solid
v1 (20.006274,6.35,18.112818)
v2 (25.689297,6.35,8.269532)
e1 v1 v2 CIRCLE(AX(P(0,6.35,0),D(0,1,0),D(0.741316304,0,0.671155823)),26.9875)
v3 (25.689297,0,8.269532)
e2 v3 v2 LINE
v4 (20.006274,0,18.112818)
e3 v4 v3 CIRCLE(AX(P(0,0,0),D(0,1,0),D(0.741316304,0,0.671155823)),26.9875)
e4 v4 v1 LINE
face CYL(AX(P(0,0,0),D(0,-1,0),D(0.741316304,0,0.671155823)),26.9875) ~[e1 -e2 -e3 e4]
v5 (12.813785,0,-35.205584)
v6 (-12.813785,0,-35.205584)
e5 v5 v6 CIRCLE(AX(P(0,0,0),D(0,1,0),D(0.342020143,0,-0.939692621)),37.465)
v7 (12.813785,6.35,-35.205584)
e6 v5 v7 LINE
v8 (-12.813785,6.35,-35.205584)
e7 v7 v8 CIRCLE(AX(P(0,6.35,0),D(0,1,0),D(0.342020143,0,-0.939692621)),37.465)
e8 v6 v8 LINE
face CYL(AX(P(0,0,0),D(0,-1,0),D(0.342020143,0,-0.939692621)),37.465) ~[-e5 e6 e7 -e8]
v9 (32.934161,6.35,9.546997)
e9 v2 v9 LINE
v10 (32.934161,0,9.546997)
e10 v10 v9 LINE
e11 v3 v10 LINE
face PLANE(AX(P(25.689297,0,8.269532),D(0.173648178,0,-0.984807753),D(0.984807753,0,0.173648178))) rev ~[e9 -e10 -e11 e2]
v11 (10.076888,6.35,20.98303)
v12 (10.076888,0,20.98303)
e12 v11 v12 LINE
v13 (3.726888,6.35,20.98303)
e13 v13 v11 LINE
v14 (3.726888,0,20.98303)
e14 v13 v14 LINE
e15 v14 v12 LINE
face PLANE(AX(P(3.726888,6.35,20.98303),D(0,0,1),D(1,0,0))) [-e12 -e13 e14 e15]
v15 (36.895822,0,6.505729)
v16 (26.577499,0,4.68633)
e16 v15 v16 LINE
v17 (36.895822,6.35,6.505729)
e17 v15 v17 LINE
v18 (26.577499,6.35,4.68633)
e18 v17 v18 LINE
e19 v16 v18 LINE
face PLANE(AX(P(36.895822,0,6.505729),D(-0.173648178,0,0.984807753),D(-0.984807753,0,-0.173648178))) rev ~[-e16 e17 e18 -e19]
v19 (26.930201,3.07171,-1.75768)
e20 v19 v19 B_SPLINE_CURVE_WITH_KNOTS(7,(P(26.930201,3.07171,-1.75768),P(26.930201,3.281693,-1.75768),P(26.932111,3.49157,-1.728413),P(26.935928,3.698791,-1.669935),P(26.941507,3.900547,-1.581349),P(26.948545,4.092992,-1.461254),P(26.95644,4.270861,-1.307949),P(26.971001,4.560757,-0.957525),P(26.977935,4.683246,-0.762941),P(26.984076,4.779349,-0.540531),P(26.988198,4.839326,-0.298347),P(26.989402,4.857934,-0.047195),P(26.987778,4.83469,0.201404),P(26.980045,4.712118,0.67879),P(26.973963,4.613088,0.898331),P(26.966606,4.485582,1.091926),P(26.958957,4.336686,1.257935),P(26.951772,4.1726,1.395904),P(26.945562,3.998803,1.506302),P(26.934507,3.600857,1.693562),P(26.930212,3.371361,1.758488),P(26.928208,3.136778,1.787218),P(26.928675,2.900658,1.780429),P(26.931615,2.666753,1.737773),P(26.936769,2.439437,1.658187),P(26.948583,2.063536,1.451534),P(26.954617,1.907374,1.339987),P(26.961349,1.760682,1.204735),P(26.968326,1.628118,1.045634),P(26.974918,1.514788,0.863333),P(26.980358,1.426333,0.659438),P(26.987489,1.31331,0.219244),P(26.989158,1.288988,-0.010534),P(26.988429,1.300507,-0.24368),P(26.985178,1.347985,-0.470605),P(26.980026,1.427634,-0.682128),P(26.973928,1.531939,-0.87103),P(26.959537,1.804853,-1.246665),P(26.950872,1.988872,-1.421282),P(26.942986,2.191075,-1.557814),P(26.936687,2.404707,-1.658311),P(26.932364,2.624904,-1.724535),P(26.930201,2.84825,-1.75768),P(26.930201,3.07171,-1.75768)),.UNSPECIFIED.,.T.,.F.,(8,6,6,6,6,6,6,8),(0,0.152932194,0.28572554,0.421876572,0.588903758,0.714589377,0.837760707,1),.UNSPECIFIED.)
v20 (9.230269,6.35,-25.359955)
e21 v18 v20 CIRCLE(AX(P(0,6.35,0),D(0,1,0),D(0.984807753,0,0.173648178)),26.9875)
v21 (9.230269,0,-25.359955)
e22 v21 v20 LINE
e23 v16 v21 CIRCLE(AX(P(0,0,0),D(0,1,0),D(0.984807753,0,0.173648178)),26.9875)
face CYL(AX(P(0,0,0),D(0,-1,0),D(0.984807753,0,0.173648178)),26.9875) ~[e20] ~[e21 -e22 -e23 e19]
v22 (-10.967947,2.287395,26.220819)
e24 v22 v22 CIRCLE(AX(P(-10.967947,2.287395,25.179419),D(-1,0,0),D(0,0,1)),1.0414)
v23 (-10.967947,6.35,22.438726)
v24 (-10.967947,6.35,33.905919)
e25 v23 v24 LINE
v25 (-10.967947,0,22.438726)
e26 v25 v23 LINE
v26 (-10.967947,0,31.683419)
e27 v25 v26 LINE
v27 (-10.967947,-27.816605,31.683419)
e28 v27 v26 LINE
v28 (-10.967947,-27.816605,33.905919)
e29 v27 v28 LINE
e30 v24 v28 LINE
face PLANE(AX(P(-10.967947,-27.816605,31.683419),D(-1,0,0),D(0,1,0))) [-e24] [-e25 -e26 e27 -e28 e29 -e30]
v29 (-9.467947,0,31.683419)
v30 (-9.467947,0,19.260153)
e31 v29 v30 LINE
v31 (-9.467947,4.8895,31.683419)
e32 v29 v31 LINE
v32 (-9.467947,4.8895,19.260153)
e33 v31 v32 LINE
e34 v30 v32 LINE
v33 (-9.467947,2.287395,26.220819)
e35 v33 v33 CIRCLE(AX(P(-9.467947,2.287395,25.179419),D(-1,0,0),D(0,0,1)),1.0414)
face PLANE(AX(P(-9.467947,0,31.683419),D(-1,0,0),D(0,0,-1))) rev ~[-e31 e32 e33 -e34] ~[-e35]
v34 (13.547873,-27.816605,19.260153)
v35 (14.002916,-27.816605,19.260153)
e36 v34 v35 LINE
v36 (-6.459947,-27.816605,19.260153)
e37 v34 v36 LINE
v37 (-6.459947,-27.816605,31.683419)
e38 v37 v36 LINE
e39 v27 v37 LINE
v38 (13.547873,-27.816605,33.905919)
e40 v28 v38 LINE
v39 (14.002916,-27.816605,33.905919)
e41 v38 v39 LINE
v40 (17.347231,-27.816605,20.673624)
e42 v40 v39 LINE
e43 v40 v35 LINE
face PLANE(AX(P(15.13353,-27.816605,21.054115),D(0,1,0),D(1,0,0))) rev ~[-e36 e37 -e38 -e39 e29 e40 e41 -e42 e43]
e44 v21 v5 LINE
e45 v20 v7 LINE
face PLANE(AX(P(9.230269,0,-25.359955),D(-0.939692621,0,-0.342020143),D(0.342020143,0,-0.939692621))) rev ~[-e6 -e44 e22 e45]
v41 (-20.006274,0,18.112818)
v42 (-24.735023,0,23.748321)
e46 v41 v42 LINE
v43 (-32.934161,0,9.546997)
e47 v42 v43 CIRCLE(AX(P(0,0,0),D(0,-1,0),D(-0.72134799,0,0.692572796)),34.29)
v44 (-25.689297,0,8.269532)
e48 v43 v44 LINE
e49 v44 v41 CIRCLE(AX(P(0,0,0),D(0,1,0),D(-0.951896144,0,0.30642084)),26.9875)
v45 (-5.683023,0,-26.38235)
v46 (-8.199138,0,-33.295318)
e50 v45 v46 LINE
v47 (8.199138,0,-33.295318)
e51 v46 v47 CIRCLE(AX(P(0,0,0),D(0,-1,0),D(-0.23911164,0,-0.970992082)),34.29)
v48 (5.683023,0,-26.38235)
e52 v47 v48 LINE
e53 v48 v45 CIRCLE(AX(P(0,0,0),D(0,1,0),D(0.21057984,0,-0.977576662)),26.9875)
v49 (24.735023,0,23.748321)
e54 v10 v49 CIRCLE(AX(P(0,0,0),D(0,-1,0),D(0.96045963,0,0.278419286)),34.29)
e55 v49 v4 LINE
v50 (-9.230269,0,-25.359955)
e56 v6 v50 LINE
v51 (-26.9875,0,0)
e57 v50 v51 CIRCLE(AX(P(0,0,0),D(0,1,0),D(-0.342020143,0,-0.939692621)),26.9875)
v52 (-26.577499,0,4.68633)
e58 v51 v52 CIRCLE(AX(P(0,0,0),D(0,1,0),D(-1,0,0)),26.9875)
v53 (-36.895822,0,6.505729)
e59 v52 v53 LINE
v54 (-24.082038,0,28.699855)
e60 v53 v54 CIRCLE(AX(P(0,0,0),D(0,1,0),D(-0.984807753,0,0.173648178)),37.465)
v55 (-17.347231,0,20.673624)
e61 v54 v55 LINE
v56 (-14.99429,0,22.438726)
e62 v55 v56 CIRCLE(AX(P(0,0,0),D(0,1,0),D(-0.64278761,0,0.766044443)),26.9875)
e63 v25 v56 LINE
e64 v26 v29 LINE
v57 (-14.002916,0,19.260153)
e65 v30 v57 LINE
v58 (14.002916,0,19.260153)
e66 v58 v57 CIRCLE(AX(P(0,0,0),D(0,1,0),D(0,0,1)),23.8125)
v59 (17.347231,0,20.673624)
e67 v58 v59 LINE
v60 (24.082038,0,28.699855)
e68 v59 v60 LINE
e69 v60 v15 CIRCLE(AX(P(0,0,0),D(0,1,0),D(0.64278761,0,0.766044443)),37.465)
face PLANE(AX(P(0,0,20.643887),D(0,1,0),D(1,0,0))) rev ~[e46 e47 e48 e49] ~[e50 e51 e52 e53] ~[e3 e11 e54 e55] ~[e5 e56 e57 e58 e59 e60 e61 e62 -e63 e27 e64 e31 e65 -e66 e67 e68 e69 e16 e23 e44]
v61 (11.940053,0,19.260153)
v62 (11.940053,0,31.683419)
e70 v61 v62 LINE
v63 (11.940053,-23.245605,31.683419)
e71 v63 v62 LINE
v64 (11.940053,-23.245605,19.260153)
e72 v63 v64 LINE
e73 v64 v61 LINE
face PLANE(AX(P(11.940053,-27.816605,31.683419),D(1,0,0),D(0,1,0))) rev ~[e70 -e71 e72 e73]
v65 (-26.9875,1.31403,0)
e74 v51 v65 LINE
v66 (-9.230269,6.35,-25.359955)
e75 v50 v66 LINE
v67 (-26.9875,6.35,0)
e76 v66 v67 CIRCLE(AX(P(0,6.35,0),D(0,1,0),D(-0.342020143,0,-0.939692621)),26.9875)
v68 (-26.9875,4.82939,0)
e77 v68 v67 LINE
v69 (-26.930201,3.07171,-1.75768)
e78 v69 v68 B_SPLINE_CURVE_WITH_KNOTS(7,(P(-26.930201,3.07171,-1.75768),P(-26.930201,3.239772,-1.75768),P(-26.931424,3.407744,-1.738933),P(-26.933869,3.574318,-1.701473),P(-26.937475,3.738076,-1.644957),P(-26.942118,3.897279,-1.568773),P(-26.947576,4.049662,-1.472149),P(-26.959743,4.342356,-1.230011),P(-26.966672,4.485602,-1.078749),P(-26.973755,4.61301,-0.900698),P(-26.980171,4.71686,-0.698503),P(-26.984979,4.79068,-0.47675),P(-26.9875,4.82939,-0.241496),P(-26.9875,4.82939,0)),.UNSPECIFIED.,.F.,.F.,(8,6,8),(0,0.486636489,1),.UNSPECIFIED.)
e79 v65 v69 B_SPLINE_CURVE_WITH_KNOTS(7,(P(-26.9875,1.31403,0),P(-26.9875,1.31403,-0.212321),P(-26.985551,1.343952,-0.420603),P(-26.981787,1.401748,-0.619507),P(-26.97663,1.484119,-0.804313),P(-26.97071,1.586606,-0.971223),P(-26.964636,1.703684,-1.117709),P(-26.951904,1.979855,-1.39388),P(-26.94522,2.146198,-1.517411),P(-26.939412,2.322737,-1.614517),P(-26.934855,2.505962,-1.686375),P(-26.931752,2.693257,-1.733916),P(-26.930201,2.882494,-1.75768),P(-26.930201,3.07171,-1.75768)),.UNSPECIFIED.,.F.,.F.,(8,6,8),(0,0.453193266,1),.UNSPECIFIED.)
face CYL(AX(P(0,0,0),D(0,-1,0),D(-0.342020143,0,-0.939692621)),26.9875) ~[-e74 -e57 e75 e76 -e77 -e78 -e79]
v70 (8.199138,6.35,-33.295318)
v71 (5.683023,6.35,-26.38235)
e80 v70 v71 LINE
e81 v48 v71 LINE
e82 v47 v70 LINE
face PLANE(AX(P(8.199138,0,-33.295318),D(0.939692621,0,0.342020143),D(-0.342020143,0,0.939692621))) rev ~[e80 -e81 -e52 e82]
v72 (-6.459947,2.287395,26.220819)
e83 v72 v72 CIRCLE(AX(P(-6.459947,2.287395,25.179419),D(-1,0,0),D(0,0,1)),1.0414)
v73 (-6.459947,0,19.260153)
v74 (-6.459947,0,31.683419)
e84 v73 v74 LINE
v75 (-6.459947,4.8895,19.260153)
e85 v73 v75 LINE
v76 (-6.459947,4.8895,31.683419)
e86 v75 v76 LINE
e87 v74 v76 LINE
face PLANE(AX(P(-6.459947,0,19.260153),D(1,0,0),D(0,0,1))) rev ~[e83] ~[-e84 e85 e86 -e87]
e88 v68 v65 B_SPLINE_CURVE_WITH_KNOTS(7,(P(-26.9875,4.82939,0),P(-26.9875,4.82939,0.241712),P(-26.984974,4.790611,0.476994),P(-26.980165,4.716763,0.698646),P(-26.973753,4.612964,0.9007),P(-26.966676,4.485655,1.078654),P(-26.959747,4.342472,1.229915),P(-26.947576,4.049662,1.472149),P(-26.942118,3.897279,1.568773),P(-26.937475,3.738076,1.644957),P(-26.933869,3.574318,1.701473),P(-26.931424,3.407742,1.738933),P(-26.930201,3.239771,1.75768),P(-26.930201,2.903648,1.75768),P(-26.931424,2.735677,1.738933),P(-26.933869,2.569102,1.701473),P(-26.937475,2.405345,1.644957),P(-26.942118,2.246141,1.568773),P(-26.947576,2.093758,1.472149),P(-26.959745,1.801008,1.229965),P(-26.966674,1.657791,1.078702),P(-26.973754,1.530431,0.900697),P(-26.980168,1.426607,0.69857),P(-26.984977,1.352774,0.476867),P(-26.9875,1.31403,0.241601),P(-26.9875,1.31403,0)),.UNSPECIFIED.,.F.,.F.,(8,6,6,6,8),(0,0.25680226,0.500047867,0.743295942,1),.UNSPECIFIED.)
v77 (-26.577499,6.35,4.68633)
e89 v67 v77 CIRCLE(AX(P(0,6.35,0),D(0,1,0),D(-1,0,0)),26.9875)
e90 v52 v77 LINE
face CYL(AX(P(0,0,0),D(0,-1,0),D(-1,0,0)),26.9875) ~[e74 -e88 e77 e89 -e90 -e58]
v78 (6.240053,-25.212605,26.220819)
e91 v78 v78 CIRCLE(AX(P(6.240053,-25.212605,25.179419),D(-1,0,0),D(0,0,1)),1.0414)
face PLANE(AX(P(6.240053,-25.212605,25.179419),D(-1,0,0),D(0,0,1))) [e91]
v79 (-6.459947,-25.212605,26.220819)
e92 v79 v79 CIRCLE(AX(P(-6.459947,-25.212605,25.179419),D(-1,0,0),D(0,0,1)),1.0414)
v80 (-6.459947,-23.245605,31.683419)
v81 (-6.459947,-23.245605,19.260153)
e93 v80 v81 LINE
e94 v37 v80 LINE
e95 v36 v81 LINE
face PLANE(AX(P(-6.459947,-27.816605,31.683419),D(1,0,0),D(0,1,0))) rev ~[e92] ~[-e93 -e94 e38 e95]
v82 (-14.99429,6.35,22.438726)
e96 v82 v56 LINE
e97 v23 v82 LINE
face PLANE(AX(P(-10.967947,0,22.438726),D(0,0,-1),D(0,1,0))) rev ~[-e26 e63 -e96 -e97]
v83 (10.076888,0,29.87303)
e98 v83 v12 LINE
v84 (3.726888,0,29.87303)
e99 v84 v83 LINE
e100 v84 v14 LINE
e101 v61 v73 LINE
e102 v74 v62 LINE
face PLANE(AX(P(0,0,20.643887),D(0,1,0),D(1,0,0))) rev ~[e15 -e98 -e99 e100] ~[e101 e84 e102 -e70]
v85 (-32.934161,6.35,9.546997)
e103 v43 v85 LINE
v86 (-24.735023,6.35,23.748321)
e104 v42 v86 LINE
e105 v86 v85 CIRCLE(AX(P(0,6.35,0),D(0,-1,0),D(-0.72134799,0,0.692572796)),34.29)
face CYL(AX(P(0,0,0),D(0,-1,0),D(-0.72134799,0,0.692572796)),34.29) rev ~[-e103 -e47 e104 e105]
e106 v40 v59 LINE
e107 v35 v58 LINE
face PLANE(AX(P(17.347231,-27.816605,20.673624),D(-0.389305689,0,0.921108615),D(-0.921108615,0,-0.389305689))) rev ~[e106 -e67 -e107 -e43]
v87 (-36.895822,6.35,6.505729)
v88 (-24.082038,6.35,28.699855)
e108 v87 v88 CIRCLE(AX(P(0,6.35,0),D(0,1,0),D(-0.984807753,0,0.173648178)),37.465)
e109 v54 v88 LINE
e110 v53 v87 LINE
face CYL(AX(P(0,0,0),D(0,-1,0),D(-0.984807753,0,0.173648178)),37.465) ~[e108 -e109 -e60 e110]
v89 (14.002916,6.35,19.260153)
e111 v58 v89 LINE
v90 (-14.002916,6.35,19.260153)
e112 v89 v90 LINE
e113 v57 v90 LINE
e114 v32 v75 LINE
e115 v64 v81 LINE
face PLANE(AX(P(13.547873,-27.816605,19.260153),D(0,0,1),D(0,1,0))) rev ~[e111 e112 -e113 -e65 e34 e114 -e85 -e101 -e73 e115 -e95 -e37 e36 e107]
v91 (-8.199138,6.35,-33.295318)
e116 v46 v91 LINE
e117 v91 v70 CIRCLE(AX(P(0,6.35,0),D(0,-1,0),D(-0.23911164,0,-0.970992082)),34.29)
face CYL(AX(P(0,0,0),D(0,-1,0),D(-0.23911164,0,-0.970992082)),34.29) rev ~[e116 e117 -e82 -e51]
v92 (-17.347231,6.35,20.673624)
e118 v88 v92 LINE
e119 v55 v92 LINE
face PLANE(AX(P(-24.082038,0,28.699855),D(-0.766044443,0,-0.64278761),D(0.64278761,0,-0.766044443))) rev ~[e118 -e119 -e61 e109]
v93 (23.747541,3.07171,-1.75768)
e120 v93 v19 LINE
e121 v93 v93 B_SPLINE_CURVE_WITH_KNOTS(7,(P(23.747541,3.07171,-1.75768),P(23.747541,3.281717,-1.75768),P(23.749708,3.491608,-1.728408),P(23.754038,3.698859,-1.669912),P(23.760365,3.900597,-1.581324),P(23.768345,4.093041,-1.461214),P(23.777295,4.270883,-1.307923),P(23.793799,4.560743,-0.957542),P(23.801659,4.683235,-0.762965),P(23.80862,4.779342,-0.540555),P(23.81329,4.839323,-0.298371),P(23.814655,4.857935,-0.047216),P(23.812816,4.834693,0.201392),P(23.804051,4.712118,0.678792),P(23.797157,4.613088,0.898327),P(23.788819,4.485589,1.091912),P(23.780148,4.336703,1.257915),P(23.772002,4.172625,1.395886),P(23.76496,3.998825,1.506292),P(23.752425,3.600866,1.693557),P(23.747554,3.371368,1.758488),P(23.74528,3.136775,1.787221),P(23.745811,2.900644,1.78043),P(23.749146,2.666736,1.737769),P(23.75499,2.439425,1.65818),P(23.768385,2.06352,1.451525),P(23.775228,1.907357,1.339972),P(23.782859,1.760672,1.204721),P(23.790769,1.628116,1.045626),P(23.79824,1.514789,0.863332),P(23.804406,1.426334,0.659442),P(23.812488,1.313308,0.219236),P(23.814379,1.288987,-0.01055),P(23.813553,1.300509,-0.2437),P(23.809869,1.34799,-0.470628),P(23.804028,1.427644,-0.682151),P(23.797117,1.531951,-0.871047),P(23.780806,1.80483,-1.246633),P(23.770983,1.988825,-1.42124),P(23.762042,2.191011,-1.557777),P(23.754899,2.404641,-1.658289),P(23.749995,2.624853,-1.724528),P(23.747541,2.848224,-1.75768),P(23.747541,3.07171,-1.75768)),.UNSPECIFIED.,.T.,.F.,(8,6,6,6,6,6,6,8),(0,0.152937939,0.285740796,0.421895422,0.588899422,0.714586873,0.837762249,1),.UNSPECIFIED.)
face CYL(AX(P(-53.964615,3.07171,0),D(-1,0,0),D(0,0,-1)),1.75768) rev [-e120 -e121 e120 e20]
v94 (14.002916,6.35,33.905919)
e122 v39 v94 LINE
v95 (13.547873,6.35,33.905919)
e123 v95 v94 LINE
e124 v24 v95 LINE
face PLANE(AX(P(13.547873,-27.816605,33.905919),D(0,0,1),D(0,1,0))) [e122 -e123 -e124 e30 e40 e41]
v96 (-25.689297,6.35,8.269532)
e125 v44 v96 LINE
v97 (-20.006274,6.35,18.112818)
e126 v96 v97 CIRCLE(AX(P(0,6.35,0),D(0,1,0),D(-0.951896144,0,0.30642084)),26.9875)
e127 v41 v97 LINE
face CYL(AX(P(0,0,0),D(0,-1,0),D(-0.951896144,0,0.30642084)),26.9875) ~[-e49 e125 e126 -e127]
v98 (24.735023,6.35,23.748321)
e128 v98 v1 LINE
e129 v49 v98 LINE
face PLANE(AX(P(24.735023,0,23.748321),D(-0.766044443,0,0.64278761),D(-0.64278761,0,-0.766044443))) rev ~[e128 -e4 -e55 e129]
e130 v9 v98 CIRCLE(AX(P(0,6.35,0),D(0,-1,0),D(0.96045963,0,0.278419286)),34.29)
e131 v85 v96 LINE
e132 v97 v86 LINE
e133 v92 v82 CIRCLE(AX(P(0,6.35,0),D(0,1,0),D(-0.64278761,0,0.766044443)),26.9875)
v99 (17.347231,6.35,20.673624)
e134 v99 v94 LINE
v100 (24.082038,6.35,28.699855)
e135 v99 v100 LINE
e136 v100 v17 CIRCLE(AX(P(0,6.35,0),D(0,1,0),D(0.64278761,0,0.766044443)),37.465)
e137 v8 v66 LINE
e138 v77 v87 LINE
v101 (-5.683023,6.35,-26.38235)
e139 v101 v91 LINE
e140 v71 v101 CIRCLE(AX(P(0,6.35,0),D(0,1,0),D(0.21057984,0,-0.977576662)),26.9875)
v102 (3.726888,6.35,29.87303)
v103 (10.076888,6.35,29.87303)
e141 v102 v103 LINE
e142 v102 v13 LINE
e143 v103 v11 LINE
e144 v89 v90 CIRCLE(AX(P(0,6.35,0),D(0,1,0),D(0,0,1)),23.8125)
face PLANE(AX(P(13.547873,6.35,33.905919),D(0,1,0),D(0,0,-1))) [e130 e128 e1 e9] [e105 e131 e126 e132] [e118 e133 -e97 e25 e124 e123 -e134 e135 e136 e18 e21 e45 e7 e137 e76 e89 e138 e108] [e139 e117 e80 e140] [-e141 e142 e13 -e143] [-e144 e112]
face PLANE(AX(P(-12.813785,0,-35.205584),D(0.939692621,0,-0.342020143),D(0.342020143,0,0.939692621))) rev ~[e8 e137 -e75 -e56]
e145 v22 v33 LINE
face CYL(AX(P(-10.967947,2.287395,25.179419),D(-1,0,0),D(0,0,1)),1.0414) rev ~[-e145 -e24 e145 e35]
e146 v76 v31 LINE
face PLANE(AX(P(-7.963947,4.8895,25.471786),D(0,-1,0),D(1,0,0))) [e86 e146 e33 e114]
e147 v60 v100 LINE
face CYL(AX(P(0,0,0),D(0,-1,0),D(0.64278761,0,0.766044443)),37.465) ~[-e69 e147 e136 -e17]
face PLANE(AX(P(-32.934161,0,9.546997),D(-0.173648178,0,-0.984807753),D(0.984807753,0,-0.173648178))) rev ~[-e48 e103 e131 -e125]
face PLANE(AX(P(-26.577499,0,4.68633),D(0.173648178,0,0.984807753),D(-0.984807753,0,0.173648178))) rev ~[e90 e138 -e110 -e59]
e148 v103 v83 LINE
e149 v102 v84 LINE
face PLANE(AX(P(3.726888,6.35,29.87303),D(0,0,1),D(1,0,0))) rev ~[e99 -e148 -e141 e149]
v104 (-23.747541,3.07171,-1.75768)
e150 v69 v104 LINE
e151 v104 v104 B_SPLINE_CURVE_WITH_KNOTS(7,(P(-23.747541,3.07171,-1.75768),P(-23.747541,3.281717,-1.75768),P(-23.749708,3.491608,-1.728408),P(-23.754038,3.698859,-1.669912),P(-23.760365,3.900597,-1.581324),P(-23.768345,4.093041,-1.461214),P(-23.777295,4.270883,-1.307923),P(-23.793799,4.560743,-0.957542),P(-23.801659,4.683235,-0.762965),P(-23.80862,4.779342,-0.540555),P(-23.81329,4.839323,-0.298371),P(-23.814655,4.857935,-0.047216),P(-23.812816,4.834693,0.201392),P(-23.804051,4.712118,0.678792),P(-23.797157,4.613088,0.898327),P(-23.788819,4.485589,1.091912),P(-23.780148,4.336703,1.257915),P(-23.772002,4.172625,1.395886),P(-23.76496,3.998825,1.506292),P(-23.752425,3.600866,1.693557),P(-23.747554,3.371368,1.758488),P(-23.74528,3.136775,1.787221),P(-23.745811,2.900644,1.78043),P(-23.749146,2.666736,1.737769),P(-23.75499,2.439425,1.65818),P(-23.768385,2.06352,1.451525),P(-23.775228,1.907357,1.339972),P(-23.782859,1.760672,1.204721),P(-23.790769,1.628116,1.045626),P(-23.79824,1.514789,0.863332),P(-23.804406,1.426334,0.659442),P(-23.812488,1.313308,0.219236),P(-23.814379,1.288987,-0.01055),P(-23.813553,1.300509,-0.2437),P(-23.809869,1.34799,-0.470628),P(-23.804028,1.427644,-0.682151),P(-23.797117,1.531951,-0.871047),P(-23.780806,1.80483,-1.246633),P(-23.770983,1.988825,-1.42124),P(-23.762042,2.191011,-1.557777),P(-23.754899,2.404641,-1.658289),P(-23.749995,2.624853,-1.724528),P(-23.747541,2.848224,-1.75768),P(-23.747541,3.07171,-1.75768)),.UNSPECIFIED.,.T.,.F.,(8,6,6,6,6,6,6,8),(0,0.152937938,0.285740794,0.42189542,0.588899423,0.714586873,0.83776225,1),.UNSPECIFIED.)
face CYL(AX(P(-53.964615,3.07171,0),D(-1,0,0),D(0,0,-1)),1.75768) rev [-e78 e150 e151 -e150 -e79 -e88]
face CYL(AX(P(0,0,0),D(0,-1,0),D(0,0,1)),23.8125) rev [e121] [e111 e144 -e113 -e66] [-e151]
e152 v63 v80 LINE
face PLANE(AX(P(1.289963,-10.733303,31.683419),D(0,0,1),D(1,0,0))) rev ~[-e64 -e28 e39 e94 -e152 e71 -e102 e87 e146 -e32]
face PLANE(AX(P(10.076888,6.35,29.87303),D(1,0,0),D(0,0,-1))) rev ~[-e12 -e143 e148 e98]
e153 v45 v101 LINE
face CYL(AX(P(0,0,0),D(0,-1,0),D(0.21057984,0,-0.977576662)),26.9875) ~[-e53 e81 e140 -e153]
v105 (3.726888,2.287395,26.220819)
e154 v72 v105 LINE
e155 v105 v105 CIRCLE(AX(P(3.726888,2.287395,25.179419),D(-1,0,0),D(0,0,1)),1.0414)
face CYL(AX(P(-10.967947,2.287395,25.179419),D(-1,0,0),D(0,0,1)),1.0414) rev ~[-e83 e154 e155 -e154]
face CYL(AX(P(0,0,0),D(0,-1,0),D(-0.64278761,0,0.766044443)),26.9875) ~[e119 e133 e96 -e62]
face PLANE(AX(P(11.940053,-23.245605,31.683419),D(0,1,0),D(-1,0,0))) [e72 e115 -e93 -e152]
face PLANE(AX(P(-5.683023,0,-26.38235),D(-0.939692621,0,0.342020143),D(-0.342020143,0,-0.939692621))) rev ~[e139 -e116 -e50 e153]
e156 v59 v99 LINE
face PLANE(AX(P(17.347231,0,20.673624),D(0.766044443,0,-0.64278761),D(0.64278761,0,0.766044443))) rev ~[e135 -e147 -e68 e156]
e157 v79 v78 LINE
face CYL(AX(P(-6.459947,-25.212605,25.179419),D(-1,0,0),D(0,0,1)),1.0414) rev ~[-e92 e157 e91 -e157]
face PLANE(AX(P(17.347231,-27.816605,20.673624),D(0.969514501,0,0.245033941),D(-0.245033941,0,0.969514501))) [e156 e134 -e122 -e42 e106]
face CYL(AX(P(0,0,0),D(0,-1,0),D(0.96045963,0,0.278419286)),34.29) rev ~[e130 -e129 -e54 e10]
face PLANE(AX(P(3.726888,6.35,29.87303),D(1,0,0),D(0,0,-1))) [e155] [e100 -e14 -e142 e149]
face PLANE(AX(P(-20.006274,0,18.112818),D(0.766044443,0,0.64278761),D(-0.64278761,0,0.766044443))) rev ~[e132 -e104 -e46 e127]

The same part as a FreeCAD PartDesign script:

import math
import FreeCAD as App
import Part
import Sketcher

V = App.Vector
Q = App.Units.Quantity

doc = App.newDocument("Part")
body = doc.addObject("PartDesign::Body", "Body")

# Sketch on XZ plane
sketch1 = body.newObject("Sketcher::SketchObject", "Sketch")
sketch1.AttachmentSupport = (doc.getObject("XZ_Plane"), [""])
sketch1.MapMode = "FlatFace"
sketch1.addGeometry(Part.LineSegment(V(-26.6, 4.7, 0), V(-36.9, 6.5, 0)), False)
sketch1.addGeometry(Part.ArcOfCircle(Part.Circle(V(0, 0, 0), V(0, 0, 1), 37.5), math.radians(130), math.radians(170)), False)
sketch1.addGeometry(Part.LineSegment(V(-24.1, 28.7, 0), V(-17.3, 20.7, 0)), False)
sketch1.addGeometry(Part.ArcOfCircle(Part.Circle(V(0, 0, 0), V(0, 0, 1), 27), math.radians(50), math.radians(130)), False)
sketch1.addGeometry(Part.LineSegment(V(17.3, 20.7, 0), V(24.1, 28.7, 0)), False)
sketch1.addGeometry(Part.ArcOfCircle(Part.Circle(V(0, 0, 0), V(0, 0, 1), 37.5), math.radians(10), math.radians(50)), False)
sketch1.addGeometry(Part.LineSegment(V(36.9, 6.5, 0), V(26.6, 4.7, 0)), False)
sketch1.addGeometry(Part.ArcOfCircle(Part.Circle(V(0, 0, 0), V(0, 0, 1), 27), math.radians(-70), math.radians(10)), False)
sketch1.addGeometry(Part.LineSegment(V(9.2, -25.4, 0), V(12.8, -35.2, 0)), False)
sketch1.addGeometry(Part.ArcOfCircle(Part.Circle(V(0, 0, 0), V(0, 0, 1), 37.5), math.radians(-110), math.radians(-70)), False)
sketch1.addGeometry(Part.LineSegment(V(-12.8, -35.2, 0), V(-9.2, -25.4, 0)), False)
sketch1.addGeometry(Part.ArcOfCircle(Part.Circle(V(0, 0, 0), V(0, 0, 1), 27), math.radians(180), math.radians(250)), False)
sketch1.addGeometry(Part.ArcOfCircle(Part.Circle(V(0, 0, 0), V(0, 0, 1), 27), math.radians(170), math.radians(180)), False)
sketch1.addGeometry(Part.ArcOfCircle(Part.Circle(V(0, 0, 0), V(0, 0, 1), 34.3), math.radians(136), math.radians(164)), False)
sketch1.addGeometry(Part.LineSegment(V(-32.9, 9.5, 0), V(-25.7, 8.3, 0)), False)
sketch1.addGeometry(Part.ArcOfCircle(Part.Circle(V(0, 0, 0), V(0, 0, 1), 27), math.radians(138), math.radians(162)), False)
sketch1.addGeometry(Part.LineSegment(V(-20, 18.1, 0), V(-24.7, 23.7, 0)), False)
sketch1.addGeometry(Part.LineSegment(V(24.7, 23.7, 0), V(20, 18.1, 0)), False)
sketch1.addGeometry(Part.ArcOfCircle(Part.Circle(V(0, 0, 0), V(0, 0, 1), 27), math.radians(18), math.radians(42)), False)
sketch1.addGeometry(Part.LineSegment(V(25.7, 8.3, 0), V(32.9, 9.5, 0)), False)
sketch1.addGeometry(Part.ArcOfCircle(Part.Circle(V(0, 0, 0), V(0, 0, 1), 34.3), math.radians(16), math.radians(44)), False)
sketch1.addGeometry(Part.Circle(V(0, 0, 0), V(0, 0, 1), 23.8), False)
sketch1.addGeometry(Part.LineSegment(V(-5.7, -26.4, 0), V(-8.2, -33.3, 0)), False)
sketch1.addGeometry(Part.ArcOfCircle(Part.Circle(V(0, 0, 0), V(0, 0, 1), 34.3), math.radians(-104), math.radians(-76)), False)
sketch1.addGeometry(Part.LineSegment(V(8.2, -33.3, 0), V(5.7, -26.4, 0)), False)
sketch1.addGeometry(Part.ArcOfCircle(Part.Circle(V(0, 0, 0), V(0, 0, 1), 27), math.radians(-102), math.radians(-78)), False)
sketch1.addConstraint(Sketcher.Constraint("Coincident", 0, 2, 1, 2))
sketch1.addConstraint(Sketcher.Constraint("Coincident", 1, 1, 2, 1))
sketch1.addConstraint(Sketcher.Constraint("Coincident", 2, 2, 3, 2))
sketch1.addConstraint(Sketcher.Constraint("Coincident", 3, 1, 4, 1))
sketch1.addConstraint(Sketcher.Constraint("Coincident", 4, 2, 5, 2))
sketch1.addConstraint(Sketcher.Constraint("Coincident", 5, 1, 6, 1))
sketch1.addConstraint(Sketcher.Constraint("Coincident", 6, 2, 7, 2))
sketch1.addConstraint(Sketcher.Constraint("Coincident", 7, 1, 8, 1))
sketch1.addConstraint(Sketcher.Constraint("Coincident", 8, 2, 9, 2))
sketch1.addConstraint(Sketcher.Constraint("Coincident", 9, 1, 10, 1))
sketch1.addConstraint(Sketcher.Constraint("Coincident", 10, 2, 11, 2))
sketch1.addConstraint(Sketcher.Constraint("Tangent", 11, 1, 12, 2))
sketch1.addConstraint(Sketcher.Constraint("Coincident", 12, 1, 0, 1))
sketch1.addConstraint(Sketcher.Constraint("Coincident", 13, 2, 14, 1))
sketch1.addConstraint(Sketcher.Constraint("Coincident", 14, 2, 15, 2))
sketch1.addConstraint(Sketcher.Constraint("Coincident", 15, 1, 16, 1))
sketch1.addConstraint(Sketcher.Constraint("Coincident", 16, 2, 13, 1))
sketch1.addConstraint(Sketcher.Constraint("Coincident", 17, 2, 18, 2))
sketch1.addConstraint(Sketcher.Constraint("Coincident", 18, 1, 19, 1))
sketch1.addConstraint(Sketcher.Constraint("Coincident", 19, 2, 20, 1))
sketch1.addConstraint(Sketcher.Constraint("Coincident", 20, 2, 17, 1))
sketch1.addConstraint(Sketcher.Constraint("Coincident", 22, 2, 23, 1))
sketch1.addConstraint(Sketcher.Constraint("Coincident", 23, 2, 24, 1))
sketch1.addConstraint(Sketcher.Constraint("Coincident", 24, 2, 25, 2))
sketch1.addConstraint(Sketcher.Constraint("Coincident", 25, 1, 22, 1))
sketch1.addConstraint(Sketcher.Constraint("Coincident", 1, 3, -1, 1))
sketch1.addConstraint(Sketcher.Constraint("Coincident", 3, 3, -1, 1))
sketch1.addConstraint(Sketcher.Constraint("Coincident", 5, 3, -1, 1))
sketch1.addConstraint(Sketcher.Constraint("Coincident", 7, 3, -1, 1))
sketch1.addConstraint(Sketcher.Constraint("Coincident", 9, 3, -1, 1))
sketch1.addConstraint(Sketcher.Constraint("Coincident", 11, 3, -1, 1))
sketch1.addConstraint(Sketcher.Constraint("Coincident", 13, 3, -1, 1))
sketch1.addConstraint(Sketcher.Constraint("Coincident", 15, 3, -1, 1))
sketch1.addConstraint(Sketcher.Constraint("Coincident", 18, 3, -1, 1))
sketch1.addConstraint(Sketcher.Constraint("Coincident", 20, 3, -1, 1))
sketch1.addConstraint(Sketcher.Constraint("Coincident", 21, 3, -1, 1))
sketch1.addConstraint(Sketcher.Constraint("Coincident", 23, 3, -1, 1))
sketch1.addConstraint(Sketcher.Constraint("Coincident", 25, 3, -1, 1))
sketch1.addConstraint(Sketcher.Constraint("Equal", 1, 5))
sketch1.addConstraint(Sketcher.Constraint("Equal", 3, 7))
sketch1.addConstraint(Sketcher.Constraint("Equal", 5, 9))
sketch1.addConstraint(Sketcher.Constraint("Equal", 7, 11))
sketch1.addConstraint(Sketcher.Constraint("Equal", 11, 12))
sketch1.addConstraint(Sketcher.Constraint("Equal", 12, 15))
sketch1.addConstraint(Sketcher.Constraint("Equal", 15, 18))
sketch1.addConstraint(Sketcher.Constraint("Equal", 13, 20))
sketch1.addConstraint(Sketcher.Constraint("Equal", 20, 23))
sketch1.addConstraint(Sketcher.Constraint("Equal", 18, 25))
sketch1.addConstraint(Sketcher.Constraint("PointOnObject", 11, 1, -1))
sketch1.addConstraint(Sketcher.Constraint("Parallel", 0, 14))
sketch1.addConstraint(Sketcher.Constraint("Parallel", 2, 16))
sketch1.addConstraint(Sketcher.Constraint("Parallel", 4, 17))
sketch1.addConstraint(Sketcher.Constraint("Parallel", 6, 19))
sketch1.addConstraint(Sketcher.Constraint("Parallel", 10, 22))
sketch1.addConstraint(Sketcher.Constraint("Parallel", 8, 24))
sketch1.addConstraint(Sketcher.Constraint("Horizontal", 2, 2, 3, 1))
sketch1.addConstraint(Sketcher.Constraint("Horizontal", 1, 1, 4, 2))
sketch1.addConstraint(Sketcher.Constraint("Horizontal", 0, 2, 5, 1))
sketch1.addConstraint(Sketcher.Constraint("Horizontal", 8, 2, 9, 1))
sketch1.addConstraint(Sketcher.Constraint("Horizontal", 7, 1, 10, 2))
sketch1.addConstraint(Sketcher.Constraint("Horizontal", 6, 2, 12, 1))
sketch1.addConstraint(Sketcher.Constraint("Horizontal", 15, 1, 17, 2))
sketch1.addConstraint(Sketcher.Constraint("Horizontal", 14, 2, 18, 1))
sketch1.addConstraint(Sketcher.Constraint("Horizontal", 22, 2, 23, 2))
sketch1.addConstraint(Sketcher.Constraint("Equal", 14, 16))
sketch1.addConstraint(Sketcher.Constraint("Equal", 19, 22))
sketch1.addConstraint(Sketcher.Constraint("Radius", 13, Q("1.35 in")))
sketch1.addConstraint(Sketcher.Constraint("Diameter", 21, Q("1.875 in")))
sketch1.addConstraint(Sketcher.Constraint("Angle", 0, Q("170 deg")))
sketch1.addConstraint(Sketcher.Constraint("Angle", 2, Q("-50 deg")))
sketch1.addConstraint(Sketcher.Constraint("Angle", 8, Q("-70 deg")))
sketch1.addConstraint(Sketcher.Constraint("Radius", 1, Q("1.475 in")))
sketch1.addConstraint(Sketcher.Constraint("Radius", 3, Q("1.0625 in")))
sketch1.addConstraint(Sketcher.Constraint("DistanceX", -1, 1, 6, 2, Q("26.577499 mm")))
sketch1.addConstraint(Sketcher.Constraint("DistanceX", 2, 2, -1, 1, Q("17.347231 mm")))
sketch1.addConstraint(Sketcher.Constraint("DistanceX", -1, 1, 7, 1, Q("9.230269 mm")))
sketch1.addConstraint(Sketcher.Constraint("DistanceX", 13, 2, -1, 1, Q("32.934161 mm")))
pad1 = body.newObject("PartDesign::Pad", "Pad")
pad1.Profile = sketch1
pad1.Length = Q("0.25 in")
pad1.Reversed = True

# Sketch on YZ plane
sketch2 = body.newObject("Sketcher::SketchObject", "Sketch001")
sketch2.AttachmentSupport = (doc.getObject("YZ_Plane"), [""])
sketch2.MapMode = "FlatFace"
sketch2.addGeometry(Part.Circle(V(3.1, 0, 0), V(0, 0, 1), 1.8), False)
sketch2.addConstraint(Sketcher.Constraint("PointOnObject", 0, 3, -1))
sketch2.addConstraint(Sketcher.Constraint("Diameter", 0, Q("0.1384 in")))
sketch2.addConstraint(Sketcher.Constraint("DistanceX", -1, 1, 0, 3, Q("3.07171 mm")))
pocket1 = body.newObject("PartDesign::Pocket", "Pocket")
pocket1.Profile = sketch2
pocket1.Type = "ThroughAll"
pocket1.Midplane = True

# Sketch on XZ plane
sketch3 = body.newObject("Sketcher::SketchObject", "Sketch002")
sketch3.AttachmentSupport = (doc.getObject("XZ_Plane"), [""])
sketch3.MapMode = "FlatFace"
sketch3.addGeometry(Part.LineSegment(V(12, 32, 0), V(12, 24, 0)), False)
sketch3.addGeometry(Part.ArcOfCircle(Part.Circle(V(0, 0, 0), V(0, 0, 1), 27), math.radians(64), math.radians(114)), False)
sketch3.addGeometry(Part.LineSegment(V(-11, 25, 0), V(-11, 32, 0)), False)
sketch3.addGeometry(Part.LineSegment(V(-11, 32, 0), V(12, 32, 0)), False)
sketch3.addGeometry(Part.ArcOfCircle(Part.Circle(V(0, 0, 0), V(0, 0, 1), 24), math.radians(54), math.radians(126)), False)
sketch3.addGeometry(Part.LineSegment(V(14, 19, 0), V(-14, 19, 0)), False)
sketch3.addConstraint(Sketcher.Constraint("Coincident", 0, 2, 1, 1))
sketch3.addConstraint(Sketcher.Constraint("Coincident", 1, 2, 2, 1))
sketch3.addConstraint(Sketcher.Constraint("Coincident", 2, 2, 3, 1))
sketch3.addConstraint(Sketcher.Constraint("Coincident", 3, 2, 0, 1))
sketch3.addConstraint(Sketcher.Constraint("Coincident", 4, 1, 5, 1))
sketch3.addConstraint(Sketcher.Constraint("Coincident", 5, 2, 4, 2))
sketch3.addConstraint(Sketcher.Constraint("Vertical", 0))
sketch3.addConstraint(Sketcher.Constraint("Vertical", 2))
sketch3.addConstraint(Sketcher.Constraint("Horizontal", 3))
sketch3.addConstraint(Sketcher.Constraint("Horizontal", 5))
sketch3.addConstraint(Sketcher.Constraint("Coincident", 1, 3, -1, 1))
sketch3.addConstraint(Sketcher.Constraint("Coincident", 4, 3, -1, 1))
sketch3.addConstraint(Sketcher.Constraint("Radius", 1, Q("1.0625 in")))
sketch3.addConstraint(Sketcher.Constraint("Radius", 4, Q("0.9375 in")))
sketch3.addConstraint(Sketcher.Constraint("DistanceX", 3, 1, 3, 2, Q("22.908 mm")))
sketch3.addConstraint(Sketcher.Constraint("DistanceY", 2, 1, 2, 2, Q("7.025169 mm")))
sketch3.addConstraint(Sketcher.Constraint("DistanceX", 5, 2, 5, 1, Q("28.005832 mm")))
sketch3.addConstraint(Sketcher.Constraint("DistanceY", 0, 2, 0, 1, Q("7.480934 mm")))
pad2 = body.newObject("PartDesign::Pad", "Pad001")
pad2.Profile = sketch3
pad2.Length = Q("0.25 in")
pad2.Reversed = True

# Sketch on XY plane
sketch4 = body.newObject("Sketcher::SketchObject", "Sketch003")
sketch4.AttachmentSupport = (doc.getObject("XY_Plane"), [""])
sketch4.MapMode = "FlatFace"
sketch4.AttachmentOffset = App.Placement(V(0, 0, 31.683419), App.Rotation())
sketch4.addGeometry(Part.LineSegment(V(-11, 6, 0), V(-11, -28, 0)), False)
sketch4.addGeometry(Part.LineSegment(V(-11, -28, 0), V(14, -28, 0)), False)
sketch4.addGeometry(Part.LineSegment(V(14, -28, 0), V(14, 6, 0)), False)
sketch4.addGeometry(Part.LineSegment(V(14, 6, 0), V(-11, 6, 0)), False)
sketch4.addConstraint(Sketcher.Constraint("Coincident", 0, 2, 1, 1))
sketch4.addConstraint(Sketcher.Constraint("Coincident", 1, 2, 2, 1))
sketch4.addConstraint(Sketcher.Constraint("Coincident", 2, 2, 3, 1))
sketch4.addConstraint(Sketcher.Constraint("Coincident", 3, 2, 0, 1))
sketch4.addConstraint(Sketcher.Constraint("Vertical", 0))
sketch4.addConstraint(Sketcher.Constraint("Horizontal", 1))
sketch4.addConstraint(Sketcher.Constraint("Vertical", 2))
sketch4.addConstraint(Sketcher.Constraint("Horizontal", 3))
sketch4.addConstraint(Sketcher.Constraint("DistanceY", -1, 1, 2, 2, Q("0.25 in")))
sketch4.addConstraint(Sketcher.Constraint("DistanceX", 1, 1, 1, 2, Q("24.51582 mm")))
sketch4.addConstraint(Sketcher.Constraint("DistanceY", 0, 2, 0, 1, Q("34.166605 mm")))
sketch4.addConstraint(Sketcher.Constraint("DistanceX", 0, 2, -1, 1, Q("10.967947 mm")))
pad3 = body.newObject("PartDesign::Pad", "Pad002")
pad3.Profile = sketch4
pad3.Length = Q("0.0875 in")

# Sketch on XY plane
sketch5 = body.newObject("Sketcher::SketchObject", "Sketch004")
sketch5.AttachmentSupport = (doc.getObject("XY_Plane"), [""])
sketch5.MapMode = "FlatFace"
sketch5.AttachmentOffset = App.Placement(V(0, 0, 31.683419), App.Rotation())
sketch5.addGeometry(Part.LineSegment(V(11.9, -23.2, 0), V(11.9, -27.8, 0)), False)
sketch5.addGeometry(Part.LineSegment(V(11.9, -27.8, 0), V(-6.5, -27.8, 0)), False)
sketch5.addGeometry(Part.LineSegment(V(-6.5, -27.8, 0), V(-6.5, -23.2, 0)), False)
sketch5.addGeometry(Part.LineSegment(V(-6.5, -23.2, 0), V(11.9, -23.2, 0)), False)
sketch5.addConstraint(Sketcher.Constraint("Coincident", 0, 2, 1, 1))
sketch5.addConstraint(Sketcher.Constraint("Coincident", 1, 2, 2, 1))
sketch5.addConstraint(Sketcher.Constraint("Coincident", 2, 2, 3, 1))
sketch5.addConstraint(Sketcher.Constraint("Coincident", 3, 2, 0, 1))
sketch5.addConstraint(Sketcher.Constraint("Vertical", 0))
sketch5.addConstraint(Sketcher.Constraint("Horizontal", 1))
sketch5.addConstraint(Sketcher.Constraint("Vertical", 2))
sketch5.addConstraint(Sketcher.Constraint("Horizontal", 3))
sketch5.addConstraint(Sketcher.Constraint("DistanceX", 1, 2, 1, 1, Q("18.4 mm")))
sketch5.addConstraint(Sketcher.Constraint("DistanceY", 0, 2, 0, 1, Q("4.571 mm")))
sketch5.addConstraint(Sketcher.Constraint("DistanceX", -1, 1, 0, 2, Q("11.940053 mm")))
sketch5.addConstraint(Sketcher.Constraint("DistanceY", 0, 2, -1, 1, Q("27.816605 mm")))
pad4 = body.newObject("PartDesign::Pad", "Pad003")
pad4.Profile = sketch5
pad4.Length = 12.423266
pad4.Reversed = True

# Sketch on XY plane
sketch6 = body.newObject("Sketcher::SketchObject", "Sketch005")
sketch6.AttachmentSupport = (doc.getObject("XY_Plane"), [""])
sketch6.MapMode = "FlatFace"
sketch6.AttachmentOffset = App.Placement(V(0, 0, 31.683419), App.Rotation())
sketch6.addGeometry(Part.LineSegment(V(13.5, 6.3, 0), V(13.5, -27.8, 0)), False)
sketch6.addGeometry(Part.LineSegment(V(13.5, -27.8, 0), V(11.9, -27.8, 0)), False)
sketch6.addGeometry(Part.LineSegment(V(11.9, -27.8, 0), V(11.9, 6.3, 0)), False)
sketch6.addGeometry(Part.LineSegment(V(11.9, 6.3, 0), V(13.5, 6.3, 0)), False)
sketch6.addConstraint(Sketcher.Constraint("Coincident", 0, 2, 1, 1))
sketch6.addConstraint(Sketcher.Constraint("Coincident", 1, 2, 2, 1))
sketch6.addConstraint(Sketcher.Constraint("Coincident", 2, 2, 3, 1))
sketch6.addConstraint(Sketcher.Constraint("Coincident", 3, 2, 0, 1))
sketch6.addConstraint(Sketcher.Constraint("Vertical", 0))
sketch6.addConstraint(Sketcher.Constraint("Horizontal", 1))
sketch6.addConstraint(Sketcher.Constraint("Vertical", 2))
sketch6.addConstraint(Sketcher.Constraint("Horizontal", 3))
sketch6.addConstraint(Sketcher.Constraint("DistanceY", -1, 1, 2, 2, Q("0.25 in")))
sketch6.addConstraint(Sketcher.Constraint("DistanceX", 1, 2, 1, 1, Q("0.0633 in")))
sketch6.addConstraint(Sketcher.Constraint("DistanceY", 0, 2, 0, 1, Q("34.166605 mm")))
sketch6.addConstraint(Sketcher.Constraint("DistanceX", -1, 1, 0, 2, Q("13.547873 mm")))
pad5 = body.newObject("PartDesign::Pad", "Pad004")
pad5.Profile = sketch6
pad5.Length = 12.423266
pad5.Reversed = True

# Sketch on YZ plane
sketch7 = body.newObject("Sketcher::SketchObject", "Sketch006")
sketch7.AttachmentSupport = (doc.getObject("YZ_Plane"), [""])
sketch7.MapMode = "FlatFace"
sketch7.AttachmentOffset = App.Placement(V(0, 0, 13.547873), App.Rotation())
sketch7.addGeometry(Part.LineSegment(V(6, 34, 0), V(-28, 34, 0)), False)
sketch7.addGeometry(Part.LineSegment(V(-28, 34, 0), V(-28, 19, 0)), False)
sketch7.addGeometry(Part.LineSegment(V(-28, 19, 0), V(6, 19, 0)), False)
sketch7.addGeometry(Part.LineSegment(V(6, 19, 0), V(6, 34, 0)), False)
sketch7.addConstraint(Sketcher.Constraint("Coincident", 0, 2, 1, 1))
sketch7.addConstraint(Sketcher.Constraint("Coincident", 1, 2, 2, 1))
sketch7.addConstraint(Sketcher.Constraint("Coincident", 2, 2, 3, 1))
sketch7.addConstraint(Sketcher.Constraint("Coincident", 3, 2, 0, 1))
sketch7.addConstraint(Sketcher.Constraint("Horizontal", 0))
sketch7.addConstraint(Sketcher.Constraint("Vertical", 1))
sketch7.addConstraint(Sketcher.Constraint("Horizontal", 2))
sketch7.addConstraint(Sketcher.Constraint("Vertical", 3))
sketch7.addConstraint(Sketcher.Constraint("DistanceX", -1, 1, 2, 2, Q("0.25 in")))
sketch7.addConstraint(Sketcher.Constraint("DistanceX", 0, 2, 0, 1, Q("34.166605 mm")))
sketch7.addConstraint(Sketcher.Constraint("DistanceY", 1, 2, 1, 1, Q("14.645766 mm")))
sketch7.addConstraint(Sketcher.Constraint("DistanceY", -1, 1, 0, 2, Q("33.905919 mm")))
pad6 = body.newObject("PartDesign::Pad", "Pad005")
pad6.Profile = sketch7
pad6.Length = 0.455043

# Sketch on XZ plane
sketch8 = body.newObject("Sketcher::SketchObject", "Sketch007")
sketch8.AttachmentSupport = (doc.getObject("XZ_Plane"), [""])
sketch8.MapMode = "FlatFace"
sketch8.addGeometry(Part.LineSegment(V(-6.5, 19.3, 0), V(-6.5, 31.7, 0)), False)
sketch8.addGeometry(Part.LineSegment(V(-6.5, 31.7, 0), V(-9.5, 31.7, 0)), False)
sketch8.addGeometry(Part.LineSegment(V(-9.5, 31.7, 0), V(-9.5, 19.3, 0)), False)
sketch8.addGeometry(Part.LineSegment(V(-9.5, 19.3, 0), V(-6.5, 19.3, 0)), False)
sketch8.addConstraint(Sketcher.Constraint("Coincident", 0, 2, 1, 1))
sketch8.addConstraint(Sketcher.Constraint("Coincident", 1, 2, 2, 1))
sketch8.addConstraint(Sketcher.Constraint("Coincident", 2, 2, 3, 1))
sketch8.addConstraint(Sketcher.Constraint("Coincident", 3, 2, 0, 1))
sketch8.addConstraint(Sketcher.Constraint("Vertical", 0))
sketch8.addConstraint(Sketcher.Constraint("Horizontal", 1))
sketch8.addConstraint(Sketcher.Constraint("Vertical", 2))
sketch8.addConstraint(Sketcher.Constraint("Horizontal", 3))
sketch8.addConstraint(Sketcher.Constraint("DistanceX", 1, 2, 1, 1, Q("3.008 mm")))
sketch8.addConstraint(Sketcher.Constraint("DistanceY", 0, 1, 0, 2, Q("12.423266 mm")))
sketch8.addConstraint(Sketcher.Constraint("DistanceY", -1, 1, 0, 2, Q("31.683419 mm")))
sketch8.addConstraint(Sketcher.Constraint("DistanceX", 0, 2, -1, 1, Q("6.459947 mm")))
pocket2 = body.newObject("PartDesign::Pocket", "Pocket001")
pocket2.Profile = sketch8
pocket2.Length = Q("0.1925 in")

# Sketch on YZ plane
sketch9 = body.newObject("Sketcher::SketchObject", "Sketch008")
sketch9.AttachmentSupport = (doc.getObject("YZ_Plane"), [""])
sketch9.MapMode = "FlatFace"
sketch9.AttachmentOffset = App.Placement(V(0, 0, -10.967947), App.Rotation())
sketch9.addGeometry(Part.LineSegment(V(6, 22, 0), V(0, 22, 0)), False)
sketch9.addGeometry(Part.LineSegment(V(0, 22, 0), V(0, 34, 0)), False)
sketch9.addGeometry(Part.LineSegment(V(0, 34, 0), V(6, 34, 0)), False)
sketch9.addGeometry(Part.LineSegment(V(6, 34, 0), V(6, 22, 0)), False)
sketch9.addConstraint(Sketcher.Constraint("Coincident", 0, 2, 1, 1))
sketch9.addConstraint(Sketcher.Constraint("Coincident", 1, 2, 2, 1))
sketch9.addConstraint(Sketcher.Constraint("Coincident", 2, 2, 3, 1))
sketch9.addConstraint(Sketcher.Constraint("Coincident", 3, 2, 0, 1))
sketch9.addConstraint(Sketcher.Constraint("Horizontal", 0))
sketch9.addConstraint(Sketcher.Constraint("Vertical", 1))
sketch9.addConstraint(Sketcher.Constraint("Horizontal", 2))
sketch9.addConstraint(Sketcher.Constraint("Vertical", 3))
sketch9.addConstraint(Sketcher.Constraint("PointOnObject", 0, 2, -2))
sketch9.addConstraint(Sketcher.Constraint("DistanceX", 0, 2, 0, 1, Q("0.25 in")))
sketch9.addConstraint(Sketcher.Constraint("DistanceY", 1, 1, 1, 2, Q("11.467193 mm")))
sketch9.addConstraint(Sketcher.Constraint("DistanceY", -1, 1, 1, 2, Q("33.905919 mm")))
pocket3 = body.newObject("PartDesign::Pocket", "Pocket002")
pocket3.Profile = sketch9
pocket3.Length = Q("0.1875 in")

# Sketch on YZ plane
sketch10 = body.newObject("Sketcher::SketchObject", "Sketch009")
sketch10.AttachmentSupport = (doc.getObject("YZ_Plane"), [""])
sketch10.MapMode = "FlatFace"
sketch10.AttachmentOffset = App.Placement(V(0, 0, -10.967947), App.Rotation())
sketch10.addGeometry(Part.Circle(V(2.3, 25.2, 0), V(0, 0, 1), 1), False)
sketch10.addConstraint(Sketcher.Constraint("Diameter", 0, Q("0.082 in")))
sketch10.addConstraint(Sketcher.Constraint("DistanceY", -1, 1, 0, 3, Q("25.179419 mm")))
sketch10.addConstraint(Sketcher.Constraint("DistanceX", -1, 1, 0, 3, Q("2.287395 mm")))
pocket4 = body.newObject("PartDesign::Pocket", "Pocket003")
pocket4.Profile = sketch10
pocket4.Length = Q("0.7 in")
pocket4.Reversed = True

# Sketch on YZ plane
sketch11 = body.newObject("Sketcher::SketchObject", "Sketch010")
sketch11.AttachmentSupport = (doc.getObject("YZ_Plane"), [""])
sketch11.MapMode = "FlatFace"
sketch11.AttachmentOffset = App.Placement(V(0, 0, -6.459947), App.Rotation())
sketch11.addGeometry(Part.Circle(V(-25.2, 25.2, 0), V(0, 0, 1), 1), False)
sketch11.addConstraint(Sketcher.Constraint("Diameter", 0, Q("0.082 in")))
sketch11.addConstraint(Sketcher.Constraint("DistanceY", -1, 1, 0, 3, Q("25.179419 mm")))
sketch11.addConstraint(Sketcher.Constraint("DistanceX", 0, 3, -1, 1, Q("25.212605 mm")))
pocket5 = body.newObject("PartDesign::Pocket", "Pocket004")
pocket5.Profile = sketch11
pocket5.Length = Q("0.5 in")
pocket5.Reversed = True

# Sketch on XZ plane
sketch12 = body.newObject("Sketcher::SketchObject", "Sketch011")
sketch12.AttachmentSupport = (doc.getObject("XZ_Plane"), [""])
sketch12.MapMode = "FlatFace"
sketch12.AttachmentOffset = App.Placement(V(0, 0, 27.816605), App.Rotation())
sketch12.addGeometry(Part.LineSegment(V(17.3, 20.7, 0), V(14, 19.3, 0)), False)
sketch12.addGeometry(Part.LineSegment(V(14, 19.3, 0), V(14, 33.9, 0)), False)
sketch12.addGeometry(Part.LineSegment(V(14, 33.9, 0), V(17.3, 20.7, 0)), False)
sketch12.addConstraint(Sketcher.Constraint("Coincident", 0, 2, 1, 1))
sketch12.addConstraint(Sketcher.Constraint("Coincident", 1, 2, 2, 1))
sketch12.addConstraint(Sketcher.Constraint("Coincident", 2, 2, 0, 1))
sketch12.addConstraint(Sketcher.Constraint("Vertical", 1))
sketch12.addConstraint(Sketcher.Constraint("Distance", 0, Q("3.630749 mm")))
sketch12.addConstraint(Sketcher.Constraint("DistanceY", 1, 1, 1, 2, Q("14.645766 mm")))
sketch12.addConstraint(Sketcher.Constraint("DistanceY", -1, 1, 1, 2, Q("33.905919 mm")))
sketch12.addConstraint(Sketcher.Constraint("DistanceX", -1, 1, 2, 2, Q("17.347231 mm")))
sketch12.addConstraint(Sketcher.Constraint("DistanceY", 0, 2, 2, 2, Q("1.413471 mm")))
pad7 = body.newObject("PartDesign::Pad", "Pad006")
pad7.Profile = sketch12
pad7.Length = 34.166605
pad7.Reversed = True

# Sketch on XZ plane
sketch13 = body.newObject("Sketcher::SketchObject", "Sketch012")
sketch13.AttachmentSupport = (doc.getObject("XZ_Plane"), [""])
sketch13.MapMode = "FlatFace"
sketch13.AttachmentOffset = App.Placement(V(0, 0, -0.25 * 25.4), App.Rotation())
sketch13.addGeometry(Part.LineSegment(V(4, 21, 0), V(4, 30, 0)), False)
sketch13.addGeometry(Part.LineSegment(V(4, 30, 0), V(10, 30, 0)), False)
sketch13.addGeometry(Part.LineSegment(V(10, 30, 0), V(10, 21, 0)), False)
sketch13.addGeometry(Part.LineSegment(V(10, 21, 0), V(4, 21, 0)), False)
sketch13.addConstraint(Sketcher.Constraint("Coincident", 0, 2, 1, 1))
sketch13.addConstraint(Sketcher.Constraint("Coincident", 1, 2, 2, 1))
sketch13.addConstraint(Sketcher.Constraint("Coincident", 2, 2, 3, 1))
sketch13.addConstraint(Sketcher.Constraint("Coincident", 3, 2, 0, 1))
sketch13.addConstraint(Sketcher.Constraint("Vertical", 0))
sketch13.addConstraint(Sketcher.Constraint("Horizontal", 1))
sketch13.addConstraint(Sketcher.Constraint("Vertical", 2))
sketch13.addConstraint(Sketcher.Constraint("Horizontal", 3))
sketch13.addConstraint(Sketcher.Constraint("DistanceX", 1, 1, 1, 2, Q("0.25 in")))
sketch13.addConstraint(Sketcher.Constraint("DistanceY", 0, 1, 0, 2, Q("0.35 in")))
sketch13.addConstraint(Sketcher.Constraint("DistanceX", -1, 1, 0, 2, Q("3.726888 mm")))
sketch13.addConstraint(Sketcher.Constraint("DistanceY", -1, 1, 0, 2, Q("29.87303 mm")))
pocket6 = body.newObject("PartDesign::Pocket", "Pocket005")
pocket6.Profile = sketch13
pocket6.Length = Q("0.31 in")
pocket6.Reversed = True

doc.recompute()
